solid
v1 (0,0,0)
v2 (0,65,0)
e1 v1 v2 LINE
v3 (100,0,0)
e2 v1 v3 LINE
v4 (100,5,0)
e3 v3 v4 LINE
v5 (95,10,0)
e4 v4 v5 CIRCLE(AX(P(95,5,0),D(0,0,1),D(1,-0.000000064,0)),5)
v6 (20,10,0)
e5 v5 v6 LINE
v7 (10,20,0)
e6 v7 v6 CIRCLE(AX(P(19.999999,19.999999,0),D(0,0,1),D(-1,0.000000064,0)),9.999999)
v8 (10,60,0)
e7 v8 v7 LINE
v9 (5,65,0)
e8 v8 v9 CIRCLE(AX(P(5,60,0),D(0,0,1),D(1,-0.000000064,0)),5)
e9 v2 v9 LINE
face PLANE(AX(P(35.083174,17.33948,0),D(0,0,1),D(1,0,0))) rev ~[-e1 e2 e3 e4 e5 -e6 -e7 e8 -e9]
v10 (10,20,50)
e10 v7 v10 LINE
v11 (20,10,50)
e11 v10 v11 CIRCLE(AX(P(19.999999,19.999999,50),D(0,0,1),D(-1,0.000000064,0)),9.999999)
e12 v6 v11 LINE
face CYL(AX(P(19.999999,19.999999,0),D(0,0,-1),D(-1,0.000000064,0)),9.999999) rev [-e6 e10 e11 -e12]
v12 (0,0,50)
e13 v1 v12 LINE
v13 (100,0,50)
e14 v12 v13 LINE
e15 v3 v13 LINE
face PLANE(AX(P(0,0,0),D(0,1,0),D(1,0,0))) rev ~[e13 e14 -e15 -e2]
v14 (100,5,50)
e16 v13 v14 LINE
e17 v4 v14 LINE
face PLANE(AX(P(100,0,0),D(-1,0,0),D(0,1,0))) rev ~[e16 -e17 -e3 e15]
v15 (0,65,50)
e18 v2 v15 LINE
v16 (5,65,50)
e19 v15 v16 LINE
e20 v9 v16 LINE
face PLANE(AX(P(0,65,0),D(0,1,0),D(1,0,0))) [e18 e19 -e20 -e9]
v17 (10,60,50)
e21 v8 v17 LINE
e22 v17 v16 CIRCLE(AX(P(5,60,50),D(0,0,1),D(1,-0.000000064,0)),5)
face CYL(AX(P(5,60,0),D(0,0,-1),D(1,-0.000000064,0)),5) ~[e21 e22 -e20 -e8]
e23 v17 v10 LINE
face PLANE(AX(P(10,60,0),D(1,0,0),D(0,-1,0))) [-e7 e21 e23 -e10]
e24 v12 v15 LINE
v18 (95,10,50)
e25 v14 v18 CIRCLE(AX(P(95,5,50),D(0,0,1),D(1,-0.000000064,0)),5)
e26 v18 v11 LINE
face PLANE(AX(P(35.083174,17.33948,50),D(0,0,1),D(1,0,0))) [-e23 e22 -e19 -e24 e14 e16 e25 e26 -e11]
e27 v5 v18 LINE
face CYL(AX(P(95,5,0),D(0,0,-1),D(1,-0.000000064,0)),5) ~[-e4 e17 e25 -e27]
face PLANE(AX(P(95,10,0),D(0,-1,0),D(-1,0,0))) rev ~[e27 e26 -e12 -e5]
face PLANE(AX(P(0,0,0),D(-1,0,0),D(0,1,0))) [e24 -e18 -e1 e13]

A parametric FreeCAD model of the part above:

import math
import FreeCAD as App
import Part
import Sketcher

doc = App.newDocument("Part")
body = doc.addObject("PartDesign::Body", "Body")

# Sketch on XY plane
sketch1 = body.newObject("Sketcher::SketchObject", "Sketch")
sketch1.AttachmentSupport = (doc.getObject("XY_Plane"), [""])
sketch1.MapMode = "FlatFace"
sketch1.addGeometry(Part.LineSegment(App.Vector(0, 0, 0), App.Vector(100, 0, 0)), False)
sketch1.addGeometry(Part.LineSegment(App.Vector(100, 0, 0), App.Vector(100, 5, 0)), False)
sketch1.addGeometry(Part.ArcOfCircle(Part.Circle(App.Vector(95, 5, 0), App.Vector(0, 0, 1), 5), math.radians(0), math.radians(90)), False)
sketch1.addGeometry(Part.LineSegment(App.Vector(95, 10, 0), App.Vector(20, 10, 0)), False)
sketch1.addGeometry(Part.ArcOfCircle(Part.Circle(App.Vector(20, 20, 0), App.Vector(0, 0, 1), 10), math.radians(180), math.radians(270)), False)
sketch1.addGeometry(Part.LineSegment(App.Vector(10, 20, 0), App.Vector(10, 60, 0)), False)
sketch1.addGeometry(Part.ArcOfCircle(Part.Circle(App.Vector(5, 60, 0), App.Vector(0, 0, 1), 5), math.radians(0), math.radians(90)), False)
sketch1.addGeometry(Part.LineSegment(App.Vector(5, 65, 0), App.Vector(0, 65, 0)), False)
sketch1.addGeometry(Part.LineSegment(App.Vector(0, 65, 0), App.Vector(0, 0, 0)), False)
sketch1.addConstraint(Sketcher.Constraint("Coincident", 0, 2, 1, 1))
sketch1.addConstraint(Sketcher.Constraint("Tangent", 1, 2, 2, 1))
sketch1.addConstraint(Sketcher.Constraint("Tangent", 2, 2, 3, 1))
sketch1.addConstraint(Sketcher.Constraint("Tangent", 3, 2, 4, 2))
sketch1.addConstraint(Sketcher.Constraint("Tangent", 4, 1, 5, 1))
sketch1.addConstraint(Sketcher.Constraint("Tangent", 5, 2, 6, 1))
sketch1.addConstraint(Sketcher.Constraint("Tangent", 6, 2, 7, 1))
sketch1.addConstraint(Sketcher.Constraint("Coincident", 7, 2, 8, 1))
sketch1.addConstraint(Sketcher.Constraint("Coincident", 8, 2, 0, 1))
sketch1.addConstraint(Sketcher.Constraint("Horizontal", 0))
sketch1.addConstraint(Sketcher.Constraint("Vertical", 1))
sketch1.addConstraint(Sketcher.Constraint("Horizontal", 3))
sketch1.addConstraint(Sketcher.Constraint("Vertical", 5))
sketch1.addConstraint(Sketcher.Constraint("Horizontal", 7))
sketch1.addConstraint(Sketcher.Constraint("Vertical", 8))
sketch1.addConstraint(Sketcher.Constraint("Coincident", 8, 2, -1, 1))
sketch1.addConstraint(Sketcher.Constraint("Equal", 2, 6))
sketch1.addConstraint(Sketcher.Constraint("Equal", 7, 1))
sketch1.addConstraint(Sketcher.Constraint("Radius", 2, 5.0))
sketch1.addConstraint(Sketcher.Constraint("Radius", 4, 9.999999))
sketch1.addConstraint(Sketcher.Constraint("DistanceX", 0, 1, 0, 2, 100.0))
sketch1.addConstraint(Sketcher.Constraint("DistanceX", 3, 2, 3, 1, 75.0))
sketch1.addConstraint(Sketcher.Constraint("DistanceY", 5, 1, 5, 2, 40.0))
pad1 = body.newObject("PartDesign::Pad", "Pad")
pad1.Profile = sketch1
pad1.Length = 50

doc.recompute()
